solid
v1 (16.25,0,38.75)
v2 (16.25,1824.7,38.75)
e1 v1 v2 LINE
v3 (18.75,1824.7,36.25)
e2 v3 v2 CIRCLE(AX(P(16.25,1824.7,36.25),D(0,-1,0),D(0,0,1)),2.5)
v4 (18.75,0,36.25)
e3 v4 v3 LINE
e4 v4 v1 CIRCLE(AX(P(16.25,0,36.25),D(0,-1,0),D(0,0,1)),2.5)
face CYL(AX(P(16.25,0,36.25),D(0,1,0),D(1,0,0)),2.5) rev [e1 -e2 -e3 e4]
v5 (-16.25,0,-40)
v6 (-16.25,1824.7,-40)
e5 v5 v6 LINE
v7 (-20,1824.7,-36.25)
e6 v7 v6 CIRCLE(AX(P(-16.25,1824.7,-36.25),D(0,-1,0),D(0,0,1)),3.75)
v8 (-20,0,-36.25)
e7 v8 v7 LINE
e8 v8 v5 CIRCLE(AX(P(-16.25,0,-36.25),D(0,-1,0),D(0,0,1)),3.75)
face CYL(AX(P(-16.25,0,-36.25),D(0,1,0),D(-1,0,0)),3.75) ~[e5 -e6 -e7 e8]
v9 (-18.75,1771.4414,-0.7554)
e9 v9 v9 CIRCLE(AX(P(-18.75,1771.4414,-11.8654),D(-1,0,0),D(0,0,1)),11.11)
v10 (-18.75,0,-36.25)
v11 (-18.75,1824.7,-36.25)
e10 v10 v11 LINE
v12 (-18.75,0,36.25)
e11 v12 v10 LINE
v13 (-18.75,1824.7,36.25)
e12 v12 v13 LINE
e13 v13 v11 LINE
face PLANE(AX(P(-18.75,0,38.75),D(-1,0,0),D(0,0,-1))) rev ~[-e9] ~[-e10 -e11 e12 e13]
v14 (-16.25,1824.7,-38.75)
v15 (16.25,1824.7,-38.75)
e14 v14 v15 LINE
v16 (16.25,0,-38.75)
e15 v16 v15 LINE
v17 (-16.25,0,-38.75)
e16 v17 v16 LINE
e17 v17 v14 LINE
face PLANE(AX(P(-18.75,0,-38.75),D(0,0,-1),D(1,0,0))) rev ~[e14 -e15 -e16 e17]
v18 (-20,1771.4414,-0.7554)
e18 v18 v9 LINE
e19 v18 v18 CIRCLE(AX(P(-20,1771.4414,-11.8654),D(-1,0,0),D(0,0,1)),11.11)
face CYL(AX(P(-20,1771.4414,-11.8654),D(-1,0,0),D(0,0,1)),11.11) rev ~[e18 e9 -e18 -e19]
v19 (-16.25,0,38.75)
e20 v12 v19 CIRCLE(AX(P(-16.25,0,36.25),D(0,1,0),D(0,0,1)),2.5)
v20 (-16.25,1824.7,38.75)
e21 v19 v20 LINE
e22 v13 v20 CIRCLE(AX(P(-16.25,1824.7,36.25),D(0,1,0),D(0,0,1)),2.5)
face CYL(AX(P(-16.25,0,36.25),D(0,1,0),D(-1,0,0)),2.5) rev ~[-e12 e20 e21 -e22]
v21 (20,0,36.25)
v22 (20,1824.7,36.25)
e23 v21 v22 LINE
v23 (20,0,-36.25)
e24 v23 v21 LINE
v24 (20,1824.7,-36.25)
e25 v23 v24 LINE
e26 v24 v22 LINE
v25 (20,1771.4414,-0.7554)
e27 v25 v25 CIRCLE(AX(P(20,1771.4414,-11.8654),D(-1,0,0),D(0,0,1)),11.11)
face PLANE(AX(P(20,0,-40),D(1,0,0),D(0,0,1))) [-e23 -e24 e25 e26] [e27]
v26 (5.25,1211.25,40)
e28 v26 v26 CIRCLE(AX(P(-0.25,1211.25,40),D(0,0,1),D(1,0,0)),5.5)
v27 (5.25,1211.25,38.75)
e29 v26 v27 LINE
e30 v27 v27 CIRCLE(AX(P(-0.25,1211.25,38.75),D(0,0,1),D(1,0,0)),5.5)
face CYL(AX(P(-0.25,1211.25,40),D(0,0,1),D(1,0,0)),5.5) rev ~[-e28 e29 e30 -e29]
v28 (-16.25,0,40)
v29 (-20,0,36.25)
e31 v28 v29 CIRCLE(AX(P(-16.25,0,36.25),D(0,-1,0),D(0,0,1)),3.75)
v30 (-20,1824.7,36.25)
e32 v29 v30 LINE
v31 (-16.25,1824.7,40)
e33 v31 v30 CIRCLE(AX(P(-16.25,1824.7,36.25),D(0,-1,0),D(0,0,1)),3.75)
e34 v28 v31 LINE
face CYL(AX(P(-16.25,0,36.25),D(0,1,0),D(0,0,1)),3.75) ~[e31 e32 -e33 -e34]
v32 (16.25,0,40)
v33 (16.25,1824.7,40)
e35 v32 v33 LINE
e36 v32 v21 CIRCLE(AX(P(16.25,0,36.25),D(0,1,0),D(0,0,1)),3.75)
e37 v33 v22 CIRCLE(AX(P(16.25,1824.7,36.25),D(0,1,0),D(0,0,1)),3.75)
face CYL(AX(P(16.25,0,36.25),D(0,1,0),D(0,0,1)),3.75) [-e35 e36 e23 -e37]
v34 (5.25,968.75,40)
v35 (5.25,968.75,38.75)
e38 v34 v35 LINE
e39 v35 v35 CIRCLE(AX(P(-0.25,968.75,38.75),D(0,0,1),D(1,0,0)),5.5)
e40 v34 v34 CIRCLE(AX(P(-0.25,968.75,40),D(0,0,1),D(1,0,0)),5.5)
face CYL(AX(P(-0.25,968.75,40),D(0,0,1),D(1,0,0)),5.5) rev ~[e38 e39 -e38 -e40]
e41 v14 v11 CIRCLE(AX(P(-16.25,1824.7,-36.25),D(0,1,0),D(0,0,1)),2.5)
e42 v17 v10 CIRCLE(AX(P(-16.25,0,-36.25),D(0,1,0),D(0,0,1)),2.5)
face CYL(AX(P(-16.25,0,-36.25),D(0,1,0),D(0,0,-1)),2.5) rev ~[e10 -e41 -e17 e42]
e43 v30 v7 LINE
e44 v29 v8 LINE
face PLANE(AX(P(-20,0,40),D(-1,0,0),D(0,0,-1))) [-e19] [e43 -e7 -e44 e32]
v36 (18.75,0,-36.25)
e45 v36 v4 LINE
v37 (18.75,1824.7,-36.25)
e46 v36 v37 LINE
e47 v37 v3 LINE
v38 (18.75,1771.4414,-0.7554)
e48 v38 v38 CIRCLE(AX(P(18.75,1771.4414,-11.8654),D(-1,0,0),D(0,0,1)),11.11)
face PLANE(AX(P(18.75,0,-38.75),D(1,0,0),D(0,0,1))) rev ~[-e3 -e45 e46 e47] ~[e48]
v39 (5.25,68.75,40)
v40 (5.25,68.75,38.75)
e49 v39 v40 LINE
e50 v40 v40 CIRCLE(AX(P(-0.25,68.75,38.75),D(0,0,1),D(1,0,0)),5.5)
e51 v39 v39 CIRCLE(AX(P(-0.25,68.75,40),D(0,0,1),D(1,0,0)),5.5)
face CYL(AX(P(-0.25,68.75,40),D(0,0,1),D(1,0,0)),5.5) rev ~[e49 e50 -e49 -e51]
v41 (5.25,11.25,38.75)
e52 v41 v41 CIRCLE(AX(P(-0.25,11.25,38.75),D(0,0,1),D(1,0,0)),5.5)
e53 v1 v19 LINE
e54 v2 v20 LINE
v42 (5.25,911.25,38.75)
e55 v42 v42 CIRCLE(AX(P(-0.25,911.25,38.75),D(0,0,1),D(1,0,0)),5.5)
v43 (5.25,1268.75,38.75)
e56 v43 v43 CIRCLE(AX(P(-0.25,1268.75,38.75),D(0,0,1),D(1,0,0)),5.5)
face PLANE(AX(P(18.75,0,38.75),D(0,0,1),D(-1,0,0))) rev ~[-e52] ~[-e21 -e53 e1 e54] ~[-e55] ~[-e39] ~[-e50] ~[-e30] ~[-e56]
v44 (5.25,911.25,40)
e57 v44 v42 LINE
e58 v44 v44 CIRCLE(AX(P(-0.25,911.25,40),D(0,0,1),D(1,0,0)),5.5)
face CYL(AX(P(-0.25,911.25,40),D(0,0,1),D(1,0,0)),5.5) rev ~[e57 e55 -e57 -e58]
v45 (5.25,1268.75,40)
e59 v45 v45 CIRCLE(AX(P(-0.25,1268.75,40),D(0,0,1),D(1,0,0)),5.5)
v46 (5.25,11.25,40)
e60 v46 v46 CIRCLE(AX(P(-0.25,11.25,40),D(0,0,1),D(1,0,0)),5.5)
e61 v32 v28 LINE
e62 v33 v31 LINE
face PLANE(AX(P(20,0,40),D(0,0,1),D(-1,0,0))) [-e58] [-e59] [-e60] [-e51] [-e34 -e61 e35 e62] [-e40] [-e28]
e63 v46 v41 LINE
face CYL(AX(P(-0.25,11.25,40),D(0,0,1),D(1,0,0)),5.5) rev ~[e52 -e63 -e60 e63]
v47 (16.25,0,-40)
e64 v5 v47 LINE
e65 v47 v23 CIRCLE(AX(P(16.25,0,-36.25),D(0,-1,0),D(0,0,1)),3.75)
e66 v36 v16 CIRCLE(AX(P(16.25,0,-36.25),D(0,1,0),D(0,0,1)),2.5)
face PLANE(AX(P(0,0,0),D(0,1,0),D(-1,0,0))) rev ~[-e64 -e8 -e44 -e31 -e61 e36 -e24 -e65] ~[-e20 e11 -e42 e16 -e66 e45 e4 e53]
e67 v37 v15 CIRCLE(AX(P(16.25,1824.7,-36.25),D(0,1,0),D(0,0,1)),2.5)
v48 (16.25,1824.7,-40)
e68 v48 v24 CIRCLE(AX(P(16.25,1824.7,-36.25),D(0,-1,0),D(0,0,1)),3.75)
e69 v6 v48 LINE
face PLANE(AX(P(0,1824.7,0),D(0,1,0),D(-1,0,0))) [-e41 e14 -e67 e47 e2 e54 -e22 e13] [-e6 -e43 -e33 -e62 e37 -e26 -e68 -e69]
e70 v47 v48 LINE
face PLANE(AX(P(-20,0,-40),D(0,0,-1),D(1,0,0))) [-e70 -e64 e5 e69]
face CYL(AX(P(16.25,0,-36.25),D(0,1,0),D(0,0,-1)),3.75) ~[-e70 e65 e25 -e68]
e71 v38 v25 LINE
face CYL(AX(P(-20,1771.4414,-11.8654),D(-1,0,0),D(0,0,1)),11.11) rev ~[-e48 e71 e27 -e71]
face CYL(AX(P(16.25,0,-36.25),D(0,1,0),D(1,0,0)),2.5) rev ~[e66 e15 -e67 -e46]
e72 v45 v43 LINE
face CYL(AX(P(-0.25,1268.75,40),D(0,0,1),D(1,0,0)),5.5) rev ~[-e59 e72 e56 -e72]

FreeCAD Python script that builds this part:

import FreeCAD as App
import Part
import Sketcher

V = App.Vector


def edges_at(feature, points):
    """Names of the edges that pass closest to the given points."""
    edges = feature.Shape.Edges
    near = lambda p: min(range(len(edges)), key=lambda i: edges[i].distToShape(Part.Vertex(*p))[0])
    return sorted({f"Edge{near(p) + 1}" for p in points})

doc = App.newDocument("Part")
params = doc.addObject("Spreadsheet::Sheet", "Params")
for row, (alias, value) in enumerate([
    ("sketch1_width", "40 mm"),
    ("sketch1_height", "80 mm"),
    ("sketch1_width2", "37.5 mm"),
    ("sketch1_height2", "77.5 mm"),
    ("pad1_length", "1824.7 mm"),
    ("fillet_radius", "2.5 mm"),
    ("fillet2_radius", "3.75 mm"),
    ("sketch2_diameter", "11 mm"),
    ("pocket1_length", "10 mm"),
    ("sketch3_diameter", "22.22 mm"),
], start=1):
    params.set(f"A{row}", alias)
    params.set(f"B{row}", "=" + value)
    params.setAlias(f"B{row}", alias)

body = doc.addObject("PartDesign::Body", "Body")

# Sketch on XZ plane
sketch1 = body.newObject("Sketcher::SketchObject", "Sketch")
sketch1.AttachmentSupport = (doc.getObject("XZ_Plane"), [""])
sketch1.MapMode = "FlatFace"
sketch1.addGeometry(Part.LineSegment(V(-20, 40, 0), V(20, 40, 0)), False)
sketch1.addGeometry(Part.LineSegment(V(20, 40, 0), V(20, -40, 0)), False)
sketch1.addGeometry(Part.LineSegment(V(20, -40, 0), V(-20, -40, 0)), False)
sketch1.addGeometry(Part.LineSegment(V(-20, -40, 0), V(-20, 40, 0)), False)
sketch1.addGeometry(Part.LineSegment(V(19, -39, 0), V(19, 39, 0)), False)
sketch1.addGeometry(Part.LineSegment(V(19, 39, 0), V(-19, 39, 0)), False)
sketch1.addGeometry(Part.LineSegment(V(-19, 39, 0), V(-19, -39, 0)), False)
sketch1.addGeometry(Part.LineSegment(V(-19, -39, 0), V(19, -39, 0)), False)
sketch1.addConstraint(Sketcher.Constraint("Coincident", 0, 2, 1, 1))
sketch1.addConstraint(Sketcher.Constraint("Coincident", 1, 2, 2, 1))
sketch1.addConstraint(Sketcher.Constraint("Coincident", 2, 2, 3, 1))
sketch1.addConstraint(Sketcher.Constraint("Coincident", 3, 2, 0, 1))
sketch1.addConstraint(Sketcher.Constraint("Coincident", 4, 2, 5, 1))
sketch1.addConstraint(Sketcher.Constraint("Coincident", 5, 2, 6, 1))
sketch1.addConstraint(Sketcher.Constraint("Coincident", 6, 2, 7, 1))
sketch1.addConstraint(Sketcher.Constraint("Coincident", 7, 2, 4, 1))
sketch1.addConstraint(Sketcher.Constraint("Horizontal", 0))
sketch1.addConstraint(Sketcher.Constraint("Vertical", 1))
sketch1.addConstraint(Sketcher.Constraint("Horizontal", 2))
sketch1.addConstraint(Sketcher.Constraint("Vertical", 3))
sketch1.addConstraint(Sketcher.Constraint("Vertical", 4))
sketch1.addConstraint(Sketcher.Constraint("Horizontal", 5))
sketch1.addConstraint(Sketcher.Constraint("Vertical", 6))
sketch1.addConstraint(Sketcher.Constraint("Horizontal", 7))
sketch1.addConstraint(Sketcher.Constraint("Symmetric", 0, 2, 2, 2, -1, 1))
sketch1.addConstraint(Sketcher.Constraint("Symmetric", 4, 2, 6, 2, -1, 1))
sketch1.addConstraint(Sketcher.Constraint("DistanceX", 0, 1, 0, 2, 40.0))
sketch1.addConstraint(Sketcher.Constraint("DistanceY", 1, 2, 1, 1, 80.0))
sketch1.addConstraint(Sketcher.Constraint("DistanceX", 5, 2, 5, 1, 37.5))
sketch1.addConstraint(Sketcher.Constraint("DistanceY", 4, 1, 4, 2, 77.5))
sketch1.setExpression("Constraints[18]", "Params.sketch1_width")
sketch1.setExpression("Constraints[19]", "Params.sketch1_height")
sketch1.setExpression("Constraints[20]", "Params.sketch1_width2")
sketch1.setExpression("Constraints[21]", "Params.sketch1_height2")
pad1 = body.newObject("PartDesign::Pad", "Pad")
pad1.Profile = sketch1
pad1.setExpression("Length", "Params.pad1_length")
pad1.Reversed = True
doc.recompute()

fillet = body.newObject("PartDesign::Fillet", "Fillet")
fillet.Base = (pad1, edges_at(pad1, [
    (-18.75, 912.35, 38.75),
    (18.75, 912.35, -38.75),
    (18.75, 912.35, 38.75),
    (-18.75, 912.35, -38.75),
]))
fillet.setExpression("Radius", "Params.fillet_radius")
doc.recompute()

fillet2 = body.newObject("PartDesign::Fillet", "Fillet001")
fillet2.Base = (fillet, edges_at(fillet, [
    (20, 912.35, 40),
    (-20, 912.35, 40),
    (20, 912.35, -40),
    (-20, 912.35, -40),
]))
fillet2.setExpression("Radius", "Params.fillet2_radius")

# Sketch on XY plane
sketch2 = body.newObject("Sketcher::SketchObject", "Sketch001")
sketch2.AttachmentSupport = (doc.getObject("XY_Plane"), [""])
sketch2.MapMode = "FlatFace"
sketch2.AttachmentOffset = App.Placement(V(0, 0, 40), App.Rotation())
sketch2.addGeometry(Part.Circle(V(0, 11, 0), V(0, 0, 1), 6), False)
sketch2.addGeometry(Part.Circle(V(0, 69, 0), V(0, 0, 1), 6), False)
sketch2.addGeometry(Part.Circle(V(0, 911, 0), V(0, 0, 1), 6), False)
sketch2.addGeometry(Part.Circle(V(0, 969, 0), V(0, 0, 1), 6), False)
sketch2.addGeometry(Part.Circle(V(0, 1269, 0), V(0, 0, 1), 6), False)
sketch2.addGeometry(Part.Circle(V(0, 1211, 0), V(0, 0, 1), 6), False)
sketch2.addConstraint(Sketcher.Constraint("Equal", 0, 1))
sketch2.addConstraint(Sketcher.Constraint("Equal", 1, 2))
sketch2.addConstraint(Sketcher.Constraint("Equal", 2, 3))
sketch2.addConstraint(Sketcher.Constraint("Equal", 3, 4))
sketch2.addConstraint(Sketcher.Constraint("Equal", 4, 5))
sketch2.addConstraint(Sketcher.Constraint("Vertical", 0, 3, 1, 3))
sketch2.addConstraint(Sketcher.Constraint("Vertical", 1, 3, 2, 3))
sketch2.addConstraint(Sketcher.Constraint("Vertical", 2, 3, 3, 3))
sketch2.addConstraint(Sketcher.Constraint("Vertical", 3, 3, 4, 3))
sketch2.addConstraint(Sketcher.Constraint("Vertical", 4, 3, 5, 3))
sketch2.addConstraint(Sketcher.Constraint("Diameter", 0, 11.0))
sketch2.addConstraint(Sketcher.Constraint("DistanceY", 0, 3, 2, 3, 900.0))
sketch2.addConstraint(Sketcher.Constraint("DistanceY", 1, 3, 3, 3, 900.0))
sketch2.addConstraint(Sketcher.Constraint("DistanceY", 3, 3, 4, 3, 300.0))
sketch2.addConstraint(Sketcher.Constraint("DistanceY", 2, 3, 5, 3, 300.0))
sketch2.addConstraint(Sketcher.Constraint("DistanceY", 0, 3, 1, 3, 57.5))
sketch2.addConstraint(Sketcher.Constraint("DistanceX", 0, 3, -1, 1, 0.25))
sketch2.addConstraint(Sketcher.Constraint("DistanceY", -1, 1, 0, 3, 11.25))
sketch2.setExpression("Constraints[10]", "Params.sketch2_diameter")
pocket1 = body.newObject("PartDesign::Pocket", "Pocket")
pocket1.Profile = sketch2
pocket1.setExpression("Length", "Params.pocket1_length")

# Sketch on YZ plane
sketch3 = body.newObject("Sketcher::SketchObject", "Sketch002")
sketch3.AttachmentSupport = (doc.getObject("YZ_Plane"), [""])
sketch3.MapMode = "FlatFace"
sketch3.AttachmentOffset = App.Placement(V(0, 0, -20), App.Rotation())
sketch3.addGeometry(Part.Circle(V(1771, -12, 0), V(0, 0, 1), 11), False)
sketch3.addConstraint(Sketcher.Constraint("Diameter", 0, 22.22))
sketch3.addConstraint(Sketcher.Constraint("DistanceX", -1, 1, 0, 3, 1771.4414))
sketch3.addConstraint(Sketcher.Constraint("DistanceY", 0, 3, -1, 1, 11.8654))
sketch3.setExpression("Constraints[0]", "Params.sketch3_diameter")
pocket2 = body.newObject("PartDesign::Pocket", "Pocket001")
pocket2.Profile = sketch3
pocket2.Type = "ThroughAll"
pocket2.Reversed = True

doc.recompute()
